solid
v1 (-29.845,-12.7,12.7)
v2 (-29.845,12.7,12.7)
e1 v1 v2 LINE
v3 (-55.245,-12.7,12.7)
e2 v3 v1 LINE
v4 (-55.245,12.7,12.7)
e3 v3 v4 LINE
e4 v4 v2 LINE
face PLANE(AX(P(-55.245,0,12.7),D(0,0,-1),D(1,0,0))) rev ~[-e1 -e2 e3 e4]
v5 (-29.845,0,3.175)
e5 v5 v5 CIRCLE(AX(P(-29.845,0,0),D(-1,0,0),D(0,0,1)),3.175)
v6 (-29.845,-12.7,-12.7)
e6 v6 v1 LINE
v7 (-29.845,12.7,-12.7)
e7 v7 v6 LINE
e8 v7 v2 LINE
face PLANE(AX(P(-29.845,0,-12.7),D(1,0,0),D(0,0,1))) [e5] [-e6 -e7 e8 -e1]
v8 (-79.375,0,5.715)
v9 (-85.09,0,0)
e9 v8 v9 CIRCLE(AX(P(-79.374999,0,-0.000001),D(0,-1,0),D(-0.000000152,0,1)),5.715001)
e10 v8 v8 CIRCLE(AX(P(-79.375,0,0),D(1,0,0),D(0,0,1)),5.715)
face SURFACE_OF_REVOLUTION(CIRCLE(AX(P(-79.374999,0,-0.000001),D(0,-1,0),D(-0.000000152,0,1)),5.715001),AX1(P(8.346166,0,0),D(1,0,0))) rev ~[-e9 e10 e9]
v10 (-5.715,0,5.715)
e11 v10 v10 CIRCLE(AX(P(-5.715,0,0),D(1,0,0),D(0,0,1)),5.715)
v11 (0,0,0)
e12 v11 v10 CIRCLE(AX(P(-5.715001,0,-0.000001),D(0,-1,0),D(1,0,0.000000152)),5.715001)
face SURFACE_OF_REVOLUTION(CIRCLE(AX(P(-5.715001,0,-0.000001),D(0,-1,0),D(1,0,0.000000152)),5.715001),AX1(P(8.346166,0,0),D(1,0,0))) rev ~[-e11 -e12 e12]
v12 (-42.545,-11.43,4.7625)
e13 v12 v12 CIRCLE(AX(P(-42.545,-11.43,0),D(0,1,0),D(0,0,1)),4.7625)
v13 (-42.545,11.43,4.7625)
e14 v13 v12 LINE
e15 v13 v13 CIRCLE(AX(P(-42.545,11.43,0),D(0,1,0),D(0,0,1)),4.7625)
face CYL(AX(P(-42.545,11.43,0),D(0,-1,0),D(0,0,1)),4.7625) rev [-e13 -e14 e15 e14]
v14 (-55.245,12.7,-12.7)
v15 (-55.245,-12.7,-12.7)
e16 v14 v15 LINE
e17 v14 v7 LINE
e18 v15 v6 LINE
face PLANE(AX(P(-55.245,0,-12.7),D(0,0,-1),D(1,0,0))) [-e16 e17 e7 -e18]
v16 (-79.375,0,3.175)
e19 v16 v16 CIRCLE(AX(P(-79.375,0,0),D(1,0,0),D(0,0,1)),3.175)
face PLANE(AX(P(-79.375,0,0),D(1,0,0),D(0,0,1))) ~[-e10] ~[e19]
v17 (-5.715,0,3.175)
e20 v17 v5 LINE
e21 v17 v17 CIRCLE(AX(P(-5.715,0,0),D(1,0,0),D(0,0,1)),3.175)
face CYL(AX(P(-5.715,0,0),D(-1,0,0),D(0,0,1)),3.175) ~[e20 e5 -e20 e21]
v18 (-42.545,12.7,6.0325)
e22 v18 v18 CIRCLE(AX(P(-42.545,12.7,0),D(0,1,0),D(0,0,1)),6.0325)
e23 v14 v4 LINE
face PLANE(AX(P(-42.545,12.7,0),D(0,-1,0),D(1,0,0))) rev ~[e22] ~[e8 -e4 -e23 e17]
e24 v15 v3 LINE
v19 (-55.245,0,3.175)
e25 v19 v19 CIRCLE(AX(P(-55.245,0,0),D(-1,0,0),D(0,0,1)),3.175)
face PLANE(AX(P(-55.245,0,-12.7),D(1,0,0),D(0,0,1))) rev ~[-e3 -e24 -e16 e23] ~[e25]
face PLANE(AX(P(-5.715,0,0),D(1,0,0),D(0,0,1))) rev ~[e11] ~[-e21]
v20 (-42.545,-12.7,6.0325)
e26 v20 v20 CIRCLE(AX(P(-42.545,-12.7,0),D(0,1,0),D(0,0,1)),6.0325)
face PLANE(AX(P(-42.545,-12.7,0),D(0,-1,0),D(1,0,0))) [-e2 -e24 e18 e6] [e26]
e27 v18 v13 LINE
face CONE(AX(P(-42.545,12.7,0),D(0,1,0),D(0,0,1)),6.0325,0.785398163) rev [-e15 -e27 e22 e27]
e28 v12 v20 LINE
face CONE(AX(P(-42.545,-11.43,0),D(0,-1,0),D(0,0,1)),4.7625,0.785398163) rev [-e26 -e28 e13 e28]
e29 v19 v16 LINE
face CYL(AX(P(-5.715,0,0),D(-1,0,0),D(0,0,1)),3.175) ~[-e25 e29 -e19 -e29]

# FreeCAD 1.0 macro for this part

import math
import FreeCAD as App
import Part
import Sketcher
from FreeCAD import Vector
Q = App.Units.Quantity

doc = App.newDocument("Part")
body = doc.addObject("PartDesign::Body", "Body")

sketch1 = body.newObject("Sketcher::SketchObject", "Sketch")
sketch1.AttachmentSupport = (doc.getObject("XZ_Plane"), [""])
sketch1.MapMode = "FlatFace"
sketch1.addGeometry(Part.LineSegment(Vector(-79.4, 3.2, 0), Vector(-79.4, 5.7, 0)), False)
sketch1.addGeometry(Part.ArcOfCircle(Part.Circle(Vector(-79.4, 0, 0), Vector(0, 0, 1), 5.7), math.radians(90), math.radians(180)), False)
sketch1.addGeometry(Part.LineSegment(Vector(-85.1, 0, 0), Vector(0, 0, 0)), False)
sketch1.addGeometry(Part.ArcOfCircle(Part.Circle(Vector(-5.7, 0, 0), Vector(0, 0, 1), 5.7), math.radians(0), math.radians(90)), False)
sketch1.addGeometry(Part.LineSegment(Vector(-5.7, 5.7, 0), Vector(-5.7, 3.2, 0)), False)
sketch1.addGeometry(Part.LineSegment(Vector(-5.7, 3.2, 0), Vector(-79.4, 3.2, 0)), False)
sketch1.addConstraint(Sketcher.Constraint("Coincident", 0, 2, 1, 1))
sketch1.addConstraint(Sketcher.Constraint("Coincident", 1, 2, 2, 1))
sketch1.addConstraint(Sketcher.Constraint("Coincident", 2, 2, 3, 1))
sketch1.addConstraint(Sketcher.Constraint("Coincident", 3, 2, 4, 1))
sketch1.addConstraint(Sketcher.Constraint("Coincident", 4, 2, 5, 1))
sketch1.addConstraint(Sketcher.Constraint("Coincident", 5, 2, 0, 1))
sketch1.addConstraint(Sketcher.Constraint("Vertical", 0))
sketch1.addConstraint(Sketcher.Constraint("Horizontal", 2))
sketch1.addConstraint(Sketcher.Constraint("Vertical", 4))
sketch1.addConstraint(Sketcher.Constraint("Horizontal", 5))
sketch1.addConstraint(Sketcher.Constraint("Coincident", 2, 2, -1, 1))
sketch1.addConstraint(Sketcher.Constraint("Equal", 1, 3))
sketch1.addConstraint(Sketcher.Constraint("PointOnObject", 1, 3, -1))
sketch1.addConstraint(Sketcher.Constraint("PointOnObject", 3, 3, -1))
sketch1.addConstraint(Sketcher.Constraint("Vertical", 1, 3, 0, 2))
sketch1.addConstraint(Sketcher.Constraint("DistanceX", 5, 2, 5, 1, Q("2.9 in")))
sketch1.addConstraint(Sketcher.Constraint("DistanceY", 0, 1, 0, 2, Q("0.1 in")))
sketch1.addConstraint(Sketcher.Constraint("Radius", 1, Q("0.225 in")))
sketch1.addConstraint(Sketcher.Constraint("DistanceX", 2, 1, 2, 2, Q("3.35 in")))
revolution = body.newObject("PartDesign::Revolution", "Revolution")
revolution.Profile = sketch1
revolution.ReferenceAxis = (sketch1, ["H_Axis"])
revolution.Angle = 360

sketch2 = body.newObject("Sketcher::SketchObject", "Sketch001")
sketch2.AttachmentSupport = (doc.getObject("XZ_Plane"), [""])
sketch2.MapMode = "FlatFace"
sketch2.addGeometry(Part.LineSegment(Vector(-55, 13, 0), Vector(-55, -13, 0)), False)
sketch2.addGeometry(Part.LineSegment(Vector(-55, -13, 0), Vector(-30, -13, 0)), False)
sketch2.addGeometry(Part.LineSegment(Vector(-30, -13, 0), Vector(-30, 13, 0)), False)
sketch2.addGeometry(Part.LineSegment(Vector(-30, 13, 0), Vector(-55, 13, 0)), False)
sketch2.addConstraint(Sketcher.Constraint("Coincident", 0, 2, 1, 1))
sketch2.addConstraint(Sketcher.Constraint("Coincident", 1, 2, 2, 1))
sketch2.addConstraint(Sketcher.Constraint("Coincident", 2, 2, 3, 1))
sketch2.addConstraint(Sketcher.Constraint("Coincident", 3, 2, 0, 1))
sketch2.addConstraint(Sketcher.Constraint("Vertical", 0))
sketch2.addConstraint(Sketcher.Constraint("Horizontal", 1))
sketch2.addConstraint(Sketcher.Constraint("Vertical", 2))
sketch2.addConstraint(Sketcher.Constraint("Horizontal", 3))
sketch2.addConstraint(Sketcher.Constraint("Equal", 3, 0))
sketch2.addConstraint(Sketcher.Constraint("DistanceX", 1, 1, 1, 2, Q("1 in")))
sketch2.addConstraint(Sketcher.Constraint("DistanceY", 0, 2, -1, 1, Q("0.5 in")))
sketch2.addConstraint(Sketcher.Constraint("DistanceX", 0, 2, -1, 1, Q("2.175 in")))
pad1 = body.newObject("PartDesign::Pad", "Pad")
pad1.Profile = sketch2
pad1.Length = Q("1 in")
pad1.Midplane = True

sketch3 = body.newObject("Sketcher::SketchObject", "Sketch002")
sketch3.AttachmentSupport = (doc.getObject("YZ_Plane"), [""])
sketch3.MapMode = "FlatFace"
sketch3.AttachmentOffset = App.Placement(Vector(0, 0, -1.675 * 25.4), App.Rotation())
sketch3.addGeometry(Part.LineSegment(Vector(-12.7, 6, 0), Vector(-12.7, 0, 0)), False)
sketch3.addGeometry(Part.LineSegment(Vector(-12.7, 0, 0), Vector(12.7, 0, 0)), False)
sketch3.addGeometry(Part.LineSegment(Vector(12.7, 0, 0), Vector(12.7, 6, 0)), False)
sketch3.addGeometry(Part.LineSegment(Vector(12.7, 6, 0), Vector(11.4, 4.8, 0)), False)
sketch3.addGeometry(Part.LineSegment(Vector(11.4, 4.8, 0), Vector(-11.4, 4.8, 0)), False)
sketch3.addGeometry(Part.LineSegment(Vector(-11.4, 4.8, 0), Vector(-12.7, 6, 0)), False)
sketch3.addConstraint(Sketcher.Constraint("Coincident", 0, 2, 1, 1))
sketch3.addConstraint(Sketcher.Constraint("Coincident", 1, 2, 2, 1))
sketch3.addConstraint(Sketcher.Constraint("Coincident", 2, 2, 3, 1))
sketch3.addConstraint(Sketcher.Constraint("Coincident", 3, 2, 4, 1))
sketch3.addConstraint(Sketcher.Constraint("Coincident", 4, 2, 5, 1))
sketch3.addConstraint(Sketcher.Constraint("Coincident", 5, 2, 0, 1))
sketch3.addConstraint(Sketcher.Constraint("Vertical", 0))
sketch3.addConstraint(Sketcher.Constraint("Horizontal", 1))
sketch3.addConstraint(Sketcher.Constraint("Vertical", 2))
sketch3.addConstraint(Sketcher.Constraint("Horizontal", 4))
sketch3.addConstraint(Sketcher.Constraint("Symmetric", 0, 2, 1, 2, -1, 1))
sketch3.addConstraint(Sketcher.Constraint("Perpendicular", 3, 5))
sketch3.addConstraint(Sketcher.Constraint("Horizontal", 2, 2, 5, 2))
sketch3.addConstraint(Sketcher.Constraint("Equal", 3, 5))
sketch3.addConstraint(Sketcher.Constraint("DistanceX", 1, 1, 1, 2, Q("1 in")))
sketch3.addConstraint(Sketcher.Constraint("DistanceX", 4, 2, 4, 1, Q("0.9 in")))
sketch3.addConstraint(Sketcher.Constraint("DistanceY", 0, 2, 0, 1, Q("0.2375 in")))
groove = body.newObject("PartDesign::Groove", "Groove")
groove.Profile = sketch3
groove.ReferenceAxis = (sketch3, ["H_Axis"])
groove.Angle = 360

doc.recompute()
